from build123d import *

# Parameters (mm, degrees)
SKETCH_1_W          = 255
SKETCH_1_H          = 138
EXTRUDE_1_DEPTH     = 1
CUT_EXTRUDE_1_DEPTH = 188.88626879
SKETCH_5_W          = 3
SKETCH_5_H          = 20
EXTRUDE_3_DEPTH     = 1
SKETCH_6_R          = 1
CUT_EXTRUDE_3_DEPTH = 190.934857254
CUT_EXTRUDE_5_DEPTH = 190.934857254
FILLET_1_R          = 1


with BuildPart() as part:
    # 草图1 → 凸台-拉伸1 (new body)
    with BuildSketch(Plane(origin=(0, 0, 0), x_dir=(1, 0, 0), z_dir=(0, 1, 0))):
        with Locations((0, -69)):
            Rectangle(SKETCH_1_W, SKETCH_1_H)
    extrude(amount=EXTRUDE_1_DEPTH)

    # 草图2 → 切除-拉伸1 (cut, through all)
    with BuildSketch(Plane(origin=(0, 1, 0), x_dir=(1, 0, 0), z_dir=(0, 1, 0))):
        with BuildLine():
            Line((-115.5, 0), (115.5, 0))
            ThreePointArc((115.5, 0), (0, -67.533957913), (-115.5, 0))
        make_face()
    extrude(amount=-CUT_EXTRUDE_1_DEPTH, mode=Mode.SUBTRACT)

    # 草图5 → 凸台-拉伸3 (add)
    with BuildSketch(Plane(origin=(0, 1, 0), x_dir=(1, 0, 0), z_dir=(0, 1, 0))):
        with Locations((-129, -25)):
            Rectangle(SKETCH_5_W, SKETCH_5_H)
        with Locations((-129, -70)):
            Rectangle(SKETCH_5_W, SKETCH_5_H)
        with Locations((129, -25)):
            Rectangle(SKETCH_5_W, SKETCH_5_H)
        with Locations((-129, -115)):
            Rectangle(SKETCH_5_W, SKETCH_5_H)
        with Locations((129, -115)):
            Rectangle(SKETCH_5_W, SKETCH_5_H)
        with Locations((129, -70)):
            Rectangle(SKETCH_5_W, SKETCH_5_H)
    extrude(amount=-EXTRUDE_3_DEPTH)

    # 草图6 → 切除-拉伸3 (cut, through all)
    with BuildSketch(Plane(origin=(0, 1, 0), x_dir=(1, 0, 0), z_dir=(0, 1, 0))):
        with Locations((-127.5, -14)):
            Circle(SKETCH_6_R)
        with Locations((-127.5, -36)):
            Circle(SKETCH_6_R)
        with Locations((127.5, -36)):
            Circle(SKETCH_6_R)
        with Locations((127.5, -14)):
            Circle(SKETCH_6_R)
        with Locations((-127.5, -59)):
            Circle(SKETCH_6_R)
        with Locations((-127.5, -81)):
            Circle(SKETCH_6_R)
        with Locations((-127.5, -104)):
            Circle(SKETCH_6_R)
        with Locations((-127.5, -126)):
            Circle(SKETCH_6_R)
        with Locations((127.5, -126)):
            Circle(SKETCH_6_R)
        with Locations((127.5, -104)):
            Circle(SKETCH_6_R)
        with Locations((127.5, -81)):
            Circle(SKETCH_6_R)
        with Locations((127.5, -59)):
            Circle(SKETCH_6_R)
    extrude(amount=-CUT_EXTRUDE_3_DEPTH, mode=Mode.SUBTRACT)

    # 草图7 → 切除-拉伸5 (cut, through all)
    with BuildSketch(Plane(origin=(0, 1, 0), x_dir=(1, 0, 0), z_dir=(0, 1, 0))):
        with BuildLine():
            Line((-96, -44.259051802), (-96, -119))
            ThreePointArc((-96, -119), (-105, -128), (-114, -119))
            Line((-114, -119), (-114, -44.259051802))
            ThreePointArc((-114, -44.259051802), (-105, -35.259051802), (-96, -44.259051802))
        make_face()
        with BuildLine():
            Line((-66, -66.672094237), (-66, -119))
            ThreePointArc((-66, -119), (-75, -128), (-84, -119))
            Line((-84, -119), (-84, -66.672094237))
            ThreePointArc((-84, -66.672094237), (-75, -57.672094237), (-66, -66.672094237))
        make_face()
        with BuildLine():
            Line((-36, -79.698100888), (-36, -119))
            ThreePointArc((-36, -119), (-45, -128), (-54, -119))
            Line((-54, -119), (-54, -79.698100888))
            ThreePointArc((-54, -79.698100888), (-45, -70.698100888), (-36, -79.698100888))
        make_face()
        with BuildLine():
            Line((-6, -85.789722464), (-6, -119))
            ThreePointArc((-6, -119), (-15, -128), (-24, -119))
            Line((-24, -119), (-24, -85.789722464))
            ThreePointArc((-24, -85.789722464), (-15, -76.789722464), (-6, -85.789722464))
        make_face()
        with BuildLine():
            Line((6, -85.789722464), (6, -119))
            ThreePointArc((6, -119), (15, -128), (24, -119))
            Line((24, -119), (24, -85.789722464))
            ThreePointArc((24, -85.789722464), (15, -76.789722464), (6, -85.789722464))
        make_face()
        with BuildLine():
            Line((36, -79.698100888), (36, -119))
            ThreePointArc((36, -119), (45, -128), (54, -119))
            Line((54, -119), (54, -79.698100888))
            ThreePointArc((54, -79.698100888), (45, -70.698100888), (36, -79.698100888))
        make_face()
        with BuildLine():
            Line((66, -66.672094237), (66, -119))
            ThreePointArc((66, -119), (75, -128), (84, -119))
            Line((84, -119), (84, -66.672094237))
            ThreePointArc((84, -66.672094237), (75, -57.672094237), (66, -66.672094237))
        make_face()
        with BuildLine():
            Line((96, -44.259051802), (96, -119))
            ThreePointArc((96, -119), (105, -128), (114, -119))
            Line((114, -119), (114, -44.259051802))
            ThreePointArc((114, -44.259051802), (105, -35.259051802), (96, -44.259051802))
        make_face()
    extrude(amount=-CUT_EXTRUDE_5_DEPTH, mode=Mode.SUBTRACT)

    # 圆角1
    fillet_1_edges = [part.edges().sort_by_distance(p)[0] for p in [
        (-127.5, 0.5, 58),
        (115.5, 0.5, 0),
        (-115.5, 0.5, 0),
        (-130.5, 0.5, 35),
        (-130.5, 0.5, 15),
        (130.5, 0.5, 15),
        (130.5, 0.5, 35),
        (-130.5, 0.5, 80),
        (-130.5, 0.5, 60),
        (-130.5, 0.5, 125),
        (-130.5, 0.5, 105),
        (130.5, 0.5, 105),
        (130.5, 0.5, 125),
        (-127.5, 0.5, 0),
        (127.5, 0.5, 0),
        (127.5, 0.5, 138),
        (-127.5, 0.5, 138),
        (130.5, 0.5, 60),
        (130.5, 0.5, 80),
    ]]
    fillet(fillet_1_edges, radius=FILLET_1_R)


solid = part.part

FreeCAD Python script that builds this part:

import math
import FreeCAD as App
import Part
import Sketcher
from FreeCAD import Vector
Q = App.Units.Quantity


def edges_at(feature, points):
    """Names of the edges that pass closest to the given points."""
    edges = feature.Shape.Edges
    near = lambda p: min(range(len(edges)), key=lambda i: edges[i].distToShape(Part.Vertex(*p))[0])
    return sorted({f"Edge{near(p) + 1}" for p in points})


def add_polygon(sketch, points):
    """Adds a closed chain of lines whose ends are joined by coincident constraints."""
    first, n = sketch.GeometryCount, len(points)
    for a, b in zip(points, points[1:] + points[:1]):
        sketch.addGeometry(Part.LineSegment(App.Vector(*a, 0), App.Vector(*b, 0)), False)
    for i in range(n):
        sketch.addConstraint(Sketcher.Constraint("Coincident", first + i, 2, first + (i + 1) % n, 1))

doc = App.newDocument("Part")
params = doc.addObject("Spreadsheet::Sheet", "Params")
for row, (alias, value) in enumerate([
    ("sketch1_width", "255 mm"),
    ("sketch1_height", "138 mm"),
    ("pad1_length", "1 mm"),
    ("sketch2_width", "231 mm"),
    ("sketch3_width", "3 mm"),
    ("sketch3_height", "20 mm"),
    ("pad2_length", "1 mm"),
    ("sketch4_diameter", "2 mm"),
    ("sketch5_radius", "9 mm"),
    ("fillet_radius", "1 mm"),
], start=1):
    params.set(f"A{row}", alias)
    params.set(f"B{row}", "=" + value)
    params.setAlias(f"B{row}", alias)

body = doc.addObject("PartDesign::Body", "Body")

sketch1 = doc.addObject("Sketcher::SketchObject", "Sketch")
body.addObject(sketch1)
sketch1.AttachmentSupport = (doc.XZ_Plane, [""])
sketch1.MapMode = "FlatFace"
add_polygon(sketch1, [(-128, 0), (-128, 138), (128, 138), (128, 0)])
sketch1.addConstraint([
    Sketcher.Constraint("Vertical", 0),
    Sketcher.Constraint("Horizontal", 1),
    Sketcher.Constraint("Vertical", 2),
    Sketcher.Constraint("Horizontal", 3),
    Sketcher.Constraint("Symmetric", 2, 2, 3, 2, -1, 1),
    Sketcher.Constraint("DistanceX", 1, 1, 1, 2, Q("255 mm")),
    Sketcher.Constraint("DistanceY", 0, 1, 0, 2, Q("138 mm")),
])
sketch1.setExpression("Constraints[9]", "Params.sketch1_width")
sketch1.setExpression("Constraints[10]", "Params.sketch1_height")
pad1 = doc.addObject("PartDesign::Pad", "Pad")
body.addObject(pad1)
pad1.Profile = sketch1
pad1.setExpression("Length", "Params.pad1_length")
pad1.Reversed = True

sketch2 = doc.addObject("Sketcher::SketchObject", "Sketch001")
body.addObject(sketch2)
sketch2.AttachmentSupport = (doc.XZ_Plane, [""])
sketch2.MapMode = "FlatFace"
sketch2.AttachmentOffset = App.Placement(Vector(0, 0, -1), App.Rotation())
sketch2.addGeometry([
    Part.LineSegment(Vector(116, 0, 0), Vector(-116, 0, 0)),
    Part.ArcOfCircle(Part.Circle(Vector(0, -65, 0), Vector(0, 0, 1), 133), math.radians(29), math.radians(151)),
], False)
sketch2.addConstraint([
    Sketcher.Constraint("Coincident", 0, 1, 1, 1),
    Sketcher.Constraint("Coincident", 1, 2, 0, 2),
    Sketcher.Constraint("Horizontal", 0),
    Sketcher.Constraint("Symmetric", 0, 1, 1, 2, -1, 1),
    Sketcher.Constraint("DistanceX", 0, 2, 0, 1, Q("231 mm")),
    Sketcher.Constraint("DistanceY", 1, 3, -1, 1, Q("65 mm")),
])
sketch2.setExpression("Constraints[4]", "Params.sketch2_width")
pocket1 = doc.addObject("PartDesign::Pocket", "Pocket")
body.addObject(pocket1)
pocket1.Profile = sketch2
pocket1.Type = "ThroughAll"
pocket1.Reversed = True

sketch3 = doc.addObject("Sketcher::SketchObject", "Sketch002")
body.addObject(sketch3)
sketch3.AttachmentSupport = (doc.XZ_Plane, [""])
sketch3.MapMode = "FlatFace"
sketch3.AttachmentOffset = App.Placement(Vector(0, 0, -1), App.Rotation())
add_polygon(sketch3, [(-130.5, 15), (-130.5, 35), (-127.5, 35), (-127.5, 15)])
add_polygon(sketch3, [(-130.5, 60), (-130.5, 80), (-127.5, 80), (-127.5, 60)])
add_polygon(sketch3, [(127.5, 15), (127.5, 35), (130.5, 35), (130.5, 15)])
add_polygon(sketch3, [(-130.5, 105), (-130.5, 125), (-127.5, 125), (-127.5, 105)])
add_polygon(sketch3, [(127.5, 105), (127.5, 125), (130.5, 125), (130.5, 105)])
add_polygon(sketch3, [(127.5, 60), (127.5, 80), (130.5, 80), (130.5, 60)])
sketch3.addConstraint([
    Sketcher.Constraint("Vertical", 0),
    Sketcher.Constraint("Horizontal", 1),
    Sketcher.Constraint("Vertical", 2),
    Sketcher.Constraint("Horizontal", 3),
    Sketcher.Constraint("Vertical", 4),
    Sketcher.Constraint("Horizontal", 5),
    Sketcher.Constraint("Vertical", 6),
    Sketcher.Constraint("Horizontal", 7),
    Sketcher.Constraint("Vertical", 8),
    Sketcher.Constraint("Horizontal", 9),
    Sketcher.Constraint("Vertical", 10),
    Sketcher.Constraint("Horizontal", 11),
    Sketcher.Constraint("Vertical", 12),
    Sketcher.Constraint("Horizontal", 13),
    Sketcher.Constraint("Vertical", 14),
    Sketcher.Constraint("Horizontal", 15),
    Sketcher.Constraint("Vertical", 16),
    Sketcher.Constraint("Horizontal", 17),
    Sketcher.Constraint("Vertical", 18),
    Sketcher.Constraint("Horizontal", 19),
    Sketcher.Constraint("Vertical", 20),
    Sketcher.Constraint("Horizontal", 21),
    Sketcher.Constraint("Vertical", 22),
    Sketcher.Constraint("Horizontal", 23),
    Sketcher.Constraint("Symmetric", 1, 2, 8, 2, -2),
    Sketcher.Constraint("Symmetric", 3, 2, 10, 2, -2),
    Sketcher.Constraint("Symmetric", 13, 2, 16, 2, -2),
    Sketcher.Constraint("Symmetric", 15, 2, 18, 2, -2),
    Sketcher.Constraint("Symmetric", 5, 2, 20, 2, -2),
    Sketcher.Constraint("Symmetric", 7, 2, 22, 2, -2),
    Sketcher.Constraint("Vertical", 3, 2, 4, 2),
    Sketcher.Constraint("Vertical", 2, 2, 5, 2),
    Sketcher.Constraint("Vertical", 7, 2, 12, 2),
    Sketcher.Constraint("Vertical", 6, 2, 13, 2),
    Sketcher.Constraint("Equal", 2, 4),
    Sketcher.Constraint("Equal", 10, 12),
    Sketcher.Constraint("DistanceX", 1, 1, 1, 2, Q("3 mm")),
    Sketcher.Constraint("DistanceY", 0, 1, 0, 2, Q("20 mm")),
    Sketcher.Constraint("DistanceY", -1, 1, 0, 2, Q("35 mm")),
    Sketcher.Constraint("DistanceY", -1, 1, 4, 2, Q("80 mm")),
    Sketcher.Constraint("DistanceY", -1, 1, 12, 2, Q("125 mm")),
    Sketcher.Constraint("DistanceX", 1, 2, 8, 2, Q("255 mm")),
])
sketch3.setExpression("Constraints[60]", "Params.sketch3_width")
sketch3.setExpression("Constraints[61]", "Params.sketch3_height")
pad2 = doc.addObject("PartDesign::Pad", "Pad001")
body.addObject(pad2)
pad2.Profile = sketch3
pad2.setExpression("Length", "Params.pad2_length")

sketch4 = doc.addObject("Sketcher::SketchObject", "Sketch003")
body.addObject(sketch4)
sketch4.AttachmentSupport = (doc.XZ_Plane, [""])
sketch4.MapMode = "FlatFace"
sketch4.AttachmentOffset = App.Placement(Vector(0, 0, -1), App.Rotation())
sketch4.addGeometry([
    Part.Circle(Vector(-127.5, 14, 0), Vector(0, 0, 1), 1),
    Part.Circle(Vector(-127.5, 36, 0), Vector(0, 0, 1), 1),
    Part.Circle(Vector(127.5, 36, 0), Vector(0, 0, 1), 1),
    Part.Circle(Vector(127.5, 14, 0), Vector(0, 0, 1), 1),
    Part.Circle(Vector(-127.5, 59, 0), Vector(0, 0, 1), 1),
    Part.Circle(Vector(-127.5, 81, 0), Vector(0, 0, 1), 1),
    Part.Circle(Vector(-127.5, 104, 0), Vector(0, 0, 1), 1),
    Part.Circle(Vector(-127.5, 126, 0), Vector(0, 0, 1), 1),
    Part.Circle(Vector(127.5, 126, 0), Vector(0, 0, 1), 1),
    Part.Circle(Vector(127.5, 104, 0), Vector(0, 0, 1), 1),
    Part.Circle(Vector(127.5, 81, 0), Vector(0, 0, 1), 1),
    Part.Circle(Vector(127.5, 59, 0), Vector(0, 0, 1), 1),
], False)
sketch4.addConstraint([
    Sketcher.Constraint("Equal", 0, 1),
    Sketcher.Constraint("Equal", 1, 2),
    Sketcher.Constraint("Equal", 2, 3),
    Sketcher.Constraint("Equal", 3, 4),
    Sketcher.Constraint("Equal", 4, 5),
    Sketcher.Constraint("Equal", 5, 6),
    Sketcher.Constraint("Equal", 6, 7),
    Sketcher.Constraint("Equal", 7, 8),
    Sketcher.Constraint("Equal", 8, 9),
    Sketcher.Constraint("Equal", 9, 10),
    Sketcher.Constraint("Equal", 10, 11),
    Sketcher.Constraint("Symmetric", 1, 3, 2, 3, -2),
    Sketcher.Constraint("Symmetric", 0, 3, 3, 3, -2),
    Sketcher.Constraint("Symmetric", 7, 3, 8, 3, -2),
    Sketcher.Constraint("Symmetric", 6, 3, 9, 3, -2),
    Sketcher.Constraint("Symmetric", 5, 3, 10, 3, -2),
    Sketcher.Constraint("Symmetric", 4, 3, 11, 3, -2),
    Sketcher.Constraint("Vertical", 0, 3, 1, 3),
    Sketcher.Constraint("Vertical", 1, 3, 4, 3),
    Sketcher.Constraint("Vertical", 4, 3, 5, 3),
    Sketcher.Constraint("Vertical", 5, 3, 6, 3),
    Sketcher.Constraint("Vertical", 6, 3, 7, 3),
    Sketcher.Constraint("Diameter", 0, Q("2 mm")),
    Sketcher.Constraint("DistanceY", -1, 1, 0, 3, Q("14 mm")),
    Sketcher.Constraint("DistanceY", -1, 1, 1, 3, Q("36 mm")),
    Sketcher.Constraint("DistanceY", -1, 1, 4, 3, Q("59 mm")),
    Sketcher.Constraint("DistanceY", -1, 1, 5, 3, Q("81 mm")),
    Sketcher.Constraint("DistanceY", -1, 1, 6, 3, Q("104 mm")),
    Sketcher.Constraint("DistanceY", -1, 1, 7, 3, Q("126 mm")),
    Sketcher.Constraint("DistanceX", 1, 3, 2, 3, Q("255 mm")),
])
sketch4.setExpression("Constraints[22]", "Params.sketch4_diameter")
pocket2 = doc.addObject("PartDesign::Pocket", "Pocket001")
body.addObject(pocket2)
pocket2.Profile = sketch4
pocket2.Type = "ThroughAll"
pocket2.Reversed = True

sketch5 = doc.addObject("Sketcher::SketchObject", "Sketch004")
body.addObject(sketch5)
sketch5.AttachmentSupport = (doc.XZ_Plane, [""])
sketch5.MapMode = "FlatFace"
sketch5.AttachmentOffset = App.Placement(Vector(0, 0, -1), App.Rotation())
sketch5.addGeometry([
    Part.LineSegment(Vector(-96, 119, 0), Vector(-96, 44, 0)),
    Part.ArcOfCircle(Part.Circle(Vector(-105, 44, 0), Vector(0, 0, 1), 9), math.radians(180), math.radians(360)),
    Part.LineSegment(Vector(-114, 44, 0), Vector(-114, 119, 0)),
    Part.ArcOfCircle(Part.Circle(Vector(-105, 119, 0), Vector(0, 0, 1), 9), math.radians(0), math.radians(180)),
    Part.LineSegment(Vector(-66, 119, 0), Vector(-66, 67, 0)),
    Part.ArcOfCircle(Part.Circle(Vector(-75, 67, 0), Vector(0, 0, 1), 9), math.radians(180), math.radians(360)),
    Part.LineSegment(Vector(-84, 67, 0), Vector(-84, 119, 0)),
    Part.ArcOfCircle(Part.Circle(Vector(-75, 119, 0), Vector(0, 0, 1), 9), math.radians(0), math.radians(180)),
    Part.LineSegment(Vector(-36, 119, 0), Vector(-36, 80, 0)),
    Part.ArcOfCircle(Part.Circle(Vector(-45, 80, 0), Vector(0, 0, 1), 9), math.radians(180), math.radians(360)),
    Part.LineSegment(Vector(-54, 80, 0), Vector(-54, 119, 0)),
    Part.ArcOfCircle(Part.Circle(Vector(-45, 119, 0), Vector(0, 0, 1), 9), math.radians(0), math.radians(180)),
    Part.LineSegment(Vector(-6, 119, 0), Vector(-6, 86, 0)),
    Part.ArcOfCircle(Part.Circle(Vector(-15, 86, 0), Vector(0, 0, 1), 9), math.radians(180), math.radians(360)),
    Part.LineSegment(Vector(-24, 86, 0), Vector(-24, 119, 0)),
    Part.ArcOfCircle(Part.Circle(Vector(-15, 119, 0), Vector(0, 0, 1), 9), math.radians(0), math.radians(180)),
    Part.LineSegment(Vector(6, 86, 0), Vector(6, 119, 0)),
    Part.ArcOfCircle(Part.Circle(Vector(15, 119, 0), Vector(0, 0, 1), 9), math.radians(0), math.radians(180)),
    Part.LineSegment(Vector(24, 119, 0), Vector(24, 86, 0)),
    Part.ArcOfCircle(Part.Circle(Vector(15, 86, 0), Vector(0, 0, 1), 9), math.radians(180), math.radians(360)),
    Part.LineSegment(Vector(36, 80, 0), Vector(36, 119, 0)),
    Part.ArcOfCircle(Part.Circle(Vector(45, 119, 0), Vector(0, 0, 1), 9), math.radians(0), math.radians(180)),
    Part.LineSegment(Vector(54, 119, 0), Vector(54, 80, 0)),
    Part.ArcOfCircle(Part.Circle(Vector(45, 80, 0), Vector(0, 0, 1), 9), math.radians(180), math.radians(360)),
    Part.LineSegment(Vector(66, 67, 0), Vector(66, 119, 0)),
    Part.ArcOfCircle(Part.Circle(Vector(75, 119, 0), Vector(0, 0, 1), 9), math.radians(0), math.radians(180)),
    Part.LineSegment(Vector(84, 119, 0), Vector(84, 67, 0)),
    Part.ArcOfCircle(Part.Circle(Vector(75, 67, 0), Vector(0, 0, 1), 9), math.radians(180), math.radians(360)),
    Part.LineSegment(Vector(96, 44, 0), Vector(96, 119, 0)),
    Part.ArcOfCircle(Part.Circle(Vector(105, 119, 0), Vector(0, 0, 1), 9), math.radians(0), math.radians(180)),
    Part.LineSegment(Vector(114, 119, 0), Vector(114, 44, 0)),
    Part.ArcOfCircle(Part.Circle(Vector(105, 44, 0), Vector(0, 0, 1), 9), math.radians(180), math.radians(360)),
], False)
sketch5.addConstraint([
    Sketcher.Constraint("Tangent", 0, 2, 1, 2),
    Sketcher.Constraint("Tangent", 1, 1, 2, 1),
    Sketcher.Constraint("Tangent", 2, 2, 3, 2),
    Sketcher.Constraint("Tangent", 3, 1, 0, 1),
    Sketcher.Constraint("Tangent", 4, 2, 5, 2),
    Sketcher.Constraint("Tangent", 5, 1, 6, 1),
    Sketcher.Constraint("Tangent", 6, 2, 7, 2),
    Sketcher.Constraint("Tangent", 7, 1, 4, 1),
    Sketcher.Constraint("Tangent", 8, 2, 9, 2),
    Sketcher.Constraint("Tangent", 9, 1, 10, 1),
    Sketcher.Constraint("Tangent", 10, 2, 11, 2),
    Sketcher.Constraint("Tangent", 11, 1, 8, 1),
    Sketcher.Constraint("Tangent", 12, 2, 13, 2),
    Sketcher.Constraint("Tangent", 13, 1, 14, 1),
    Sketcher.Constraint("Tangent", 14, 2, 15, 2),
    Sketcher.Constraint("Tangent", 15, 1, 12, 1),
    Sketcher.Constraint("Tangent", 16, 2, 17, 2),
    Sketcher.Constraint("Tangent", 17, 1, 18, 1),
    Sketcher.Constraint("Tangent", 18, 2, 19, 2),
    Sketcher.Constraint("Tangent", 19, 1, 16, 1),
    Sketcher.Constraint("Tangent", 20, 2, 21, 2),
    Sketcher.Constraint("Tangent", 21, 1, 22, 1),
    Sketcher.Constraint("Tangent", 22, 2, 23, 2),
    Sketcher.Constraint("Tangent", 23, 1, 20, 1),
    Sketcher.Constraint("Tangent", 24, 2, 25, 2),
    Sketcher.Constraint("Tangent", 25, 1, 26, 1),
    Sketcher.Constraint("Tangent", 26, 2, 27, 2),
    Sketcher.Constraint("Tangent", 27, 1, 24, 1),
    Sketcher.Constraint("Tangent", 28, 2, 29, 2),
    Sketcher.Constraint("Tangent", 29, 1, 30, 1),
    Sketcher.Constraint("Tangent", 30, 2, 31, 2),
    Sketcher.Constraint("Tangent", 31, 1, 28, 1),
    Sketcher.Constraint("Vertical", 0),
    Sketcher.Constraint("Vertical", 2),
    Sketcher.Constraint("Vertical", 4),
    Sketcher.Constraint("Vertical", 6),
    Sketcher.Constraint("Vertical", 8),
    Sketcher.Constraint("Vertical", 10),
    Sketcher.Constraint("Vertical", 12),
    Sketcher.Constraint("Vertical", 14),
    Sketcher.Constraint("Vertical", 16),
    Sketcher.Constraint("Vertical", 18),
    Sketcher.Constraint("Vertical", 20),
    Sketcher.Constraint("Vertical", 22),
    Sketcher.Constraint("Vertical", 24),
    Sketcher.Constraint("Vertical", 26),
    Sketcher.Constraint("Vertical", 28),
    Sketcher.Constraint("Vertical", 30),
    Sketcher.Constraint("Equal", 3, 5),
    Sketcher.Constraint("Equal", 7, 9),
    Sketcher.Constraint("Equal", 11, 13),
    Sketcher.Constraint("Equal", 15, 17),
    Sketcher.Constraint("Equal", 19, 21),
    Sketcher.Constraint("Equal", 23, 25),
    Sketcher.Constraint("Equal", 27, 29),
    Sketcher.Constraint("Symmetric", 15, 3, 17, 3, -2),
    Sketcher.Constraint("Symmetric", 11, 3, 21, 3, -2),
    Sketcher.Constraint("Symmetric", 7, 3, 25, 3, -2),
    Sketcher.Constraint("Symmetric", 3, 3, 29, 3, -2),
    Sketcher.Constraint("Horizontal", 3, 3, 7, 3),
    Sketcher.Constraint("Horizontal", 7, 3, 11, 3),
    Sketcher.Constraint("Horizontal", 11, 3, 15, 3),
    Sketcher.Constraint("Horizontal", 13, 3, 19, 3),
    Sketcher.Constraint("Horizontal", 9, 3, 23, 3),
    Sketcher.Constraint("Horizontal", 5, 3, 27, 3),
    Sketcher.Constraint("Horizontal", 1, 3, 31, 3),
    Sketcher.Constraint("Radius", 1, Q("9 mm")),
    Sketcher.Constraint("DistanceX", 1, 3, -1, 1, Q("105 mm")),
    Sketcher.Constraint("DistanceY", -1, 1, 3, 3, Q("119 mm")),
    Sketcher.Constraint("DistanceX", 5, 3, -1, 1, Q("75 mm")),
    Sketcher.Constraint("DistanceX", 9, 3, -1, 1, Q("45 mm")),
    Sketcher.Constraint("DistanceX", 13, 3, -1, 1, Q("15 mm")),
    Sketcher.Constraint("DistanceY", 8, 2, 8, 1, Q("39.301899 mm")),
    Sketcher.Constraint("DistanceY", 0, 2, 0, 1, Q("74.740948 mm")),
    Sketcher.Constraint("DistanceY", 4, 2, 4, 1, Q("52.327906 mm")),
    Sketcher.Constraint("DistanceY", 12, 2, 12, 1, Q("33.210278 mm")),
])
sketch5.setExpression("Constraints[66]", "Params.sketch5_radius")
pocket3 = doc.addObject("PartDesign::Pocket", "Pocket002")
body.addObject(pocket3)
pocket3.Profile = sketch5
pocket3.Type = "ThroughAll"
pocket3.Reversed = True
doc.recompute()

fillet = doc.addObject("PartDesign::Fillet", "Fillet")
body.addObject(fillet)
fillet.Base = (pocket3, edges_at(pocket3, [
    (-127.5, 0.5, 58),
    (115.5, 0.5, 0),
    (-115.5, 0.5, 0),
    (-130.5, 0.5, 35),
    (-130.5, 0.5, 15),
    (130.5, 0.5, 15),
    (130.5, 0.5, 35),
    (-130.5, 0.5, 80),
    (-130.5, 0.5, 60),
    (-130.5, 0.5, 125),
    (-130.5, 0.5, 105),
    (130.5, 0.5, 105),
    (130.5, 0.5, 125),
    (-127.5, 0.5, 0),
    (127.5, 0.5, 0),
    (127.5, 0.5, 138),
    (-127.5, 0.5, 138),
    (130.5, 0.5, 60),
    (130.5, 0.5, 80),
]))
fillet.setExpression("Radius", "Params.fillet_radius")

doc.recompute()
